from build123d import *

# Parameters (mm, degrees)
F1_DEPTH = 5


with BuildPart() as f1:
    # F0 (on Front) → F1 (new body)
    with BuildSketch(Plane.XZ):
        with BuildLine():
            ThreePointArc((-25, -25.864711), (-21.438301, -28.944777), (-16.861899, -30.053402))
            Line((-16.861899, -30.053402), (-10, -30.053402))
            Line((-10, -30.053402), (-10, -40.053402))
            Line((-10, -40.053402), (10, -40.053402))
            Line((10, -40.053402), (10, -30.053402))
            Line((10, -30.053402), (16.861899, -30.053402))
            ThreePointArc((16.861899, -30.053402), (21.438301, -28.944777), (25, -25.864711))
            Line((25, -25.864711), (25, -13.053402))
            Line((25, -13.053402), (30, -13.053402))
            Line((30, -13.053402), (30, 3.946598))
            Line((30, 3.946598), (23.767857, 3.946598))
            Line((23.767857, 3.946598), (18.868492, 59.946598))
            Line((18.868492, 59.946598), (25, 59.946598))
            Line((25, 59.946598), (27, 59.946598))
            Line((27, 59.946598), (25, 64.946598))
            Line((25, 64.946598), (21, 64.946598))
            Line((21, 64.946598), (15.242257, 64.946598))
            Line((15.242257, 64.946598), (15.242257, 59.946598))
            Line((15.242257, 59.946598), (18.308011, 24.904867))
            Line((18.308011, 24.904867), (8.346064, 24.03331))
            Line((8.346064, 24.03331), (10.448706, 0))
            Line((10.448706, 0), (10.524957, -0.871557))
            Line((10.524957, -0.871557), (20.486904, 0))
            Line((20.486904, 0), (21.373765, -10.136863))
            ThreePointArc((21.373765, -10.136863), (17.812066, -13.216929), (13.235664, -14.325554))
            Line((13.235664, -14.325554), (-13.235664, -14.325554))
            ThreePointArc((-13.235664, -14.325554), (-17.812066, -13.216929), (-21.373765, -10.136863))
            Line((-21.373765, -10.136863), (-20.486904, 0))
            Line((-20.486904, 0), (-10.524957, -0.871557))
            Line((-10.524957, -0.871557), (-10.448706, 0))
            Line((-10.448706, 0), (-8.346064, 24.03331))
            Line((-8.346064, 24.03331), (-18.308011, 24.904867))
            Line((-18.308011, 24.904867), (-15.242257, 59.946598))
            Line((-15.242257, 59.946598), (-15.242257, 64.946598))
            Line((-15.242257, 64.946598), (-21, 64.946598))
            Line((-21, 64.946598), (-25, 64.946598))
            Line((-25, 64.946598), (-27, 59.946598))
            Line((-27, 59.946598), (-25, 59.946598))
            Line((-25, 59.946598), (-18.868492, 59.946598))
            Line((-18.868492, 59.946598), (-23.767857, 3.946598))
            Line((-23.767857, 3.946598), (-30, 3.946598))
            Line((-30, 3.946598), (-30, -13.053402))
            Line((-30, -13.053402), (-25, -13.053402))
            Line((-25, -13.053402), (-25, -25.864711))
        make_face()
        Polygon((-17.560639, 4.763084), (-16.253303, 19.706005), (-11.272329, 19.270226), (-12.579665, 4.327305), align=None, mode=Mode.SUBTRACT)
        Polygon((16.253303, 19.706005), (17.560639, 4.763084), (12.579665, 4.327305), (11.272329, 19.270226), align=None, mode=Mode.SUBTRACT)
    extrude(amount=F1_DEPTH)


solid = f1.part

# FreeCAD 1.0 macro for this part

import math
import FreeCAD as App
import Part
import Sketcher
from FreeCAD import Vector
Q = App.Units.Quantity

doc = App.newDocument("Part")
params = doc.addObject("Spreadsheet::Sheet", "Params")
for row, (alias, value) in enumerate([
    ("sketch1_radius", "9.999998 mm"),
    ("sketch1_width", "20 mm"),
    ("sketch1_width2", "5 mm"),
    ("sketch1_height", "10 mm"),
    ("sketch1_height2", "17 mm"),
    ("pad1_length", "5 mm"),
], start=1):
    params.set(f"A{row}", alias)
    params.set(f"B{row}", "=" + value)
    params.setAlias(f"B{row}", alias)

body = doc.addObject("PartDesign::Body", "Body")

# Sketch on XZ plane
sketch1 = doc.addObject("Sketcher::SketchObject", "Sketch")
body.addObject(sketch1)
sketch1.AttachmentSupport = (doc.XZ_Plane, [""])
sketch1.MapMode = "FlatFace"
sketch1.addGeometry([
    Part.ArcOfCircle(Part.Circle(Vector(-16.8619, -20.053404, 0), Vector(0, 0, 1), 9.999998), math.radians(-144.469882), math.radians(-89.999995)),  # 0
    Part.LineSegment(Vector(-16.861899, -30.053402, 0), Vector(-10, -30.053402, 0)),  # 1
    Part.LineSegment(Vector(-10, -30.053402, 0), Vector(-10, -40.053402, 0)),  # 2
    Part.LineSegment(Vector(-10, -40.053402, 0), Vector(10, -40.053402, 0)),  # 3
    Part.LineSegment(Vector(10, -40.053402, 0), Vector(10, -30.053402, 0)),  # 4
    Part.LineSegment(Vector(10, -30.053402, 0), Vector(16.861899, -30.053402, 0)),  # 5
    Part.ArcOfCircle(Part.Circle(Vector(16.8619, -20.053404, 0), Vector(0, 0, 1), 9.999998), math.radians(-90.000005), math.radians(-35.530118)),  # 6
    Part.LineSegment(Vector(25, -25.864711, 0), Vector(25, -13.053402, 0)),  # 7
    Part.LineSegment(Vector(25, -13.053402, 0), Vector(30, -13.053402, 0)),  # 8
    Part.LineSegment(Vector(30, -13.053402, 0), Vector(30, 3.946598, 0)),  # 9
    Part.LineSegment(Vector(30, 3.946598, 0), Vector(23.767857, 3.946598, 0)),  # 10
    Part.LineSegment(Vector(23.767857, 3.946598, 0), Vector(18.868492, 59.946598, 0)),  # 11
    Part.LineSegment(Vector(18.868492, 59.946598, 0), Vector(27, 59.946598, 0)),  # 12
    Part.LineSegment(Vector(27, 59.946598, 0), Vector(25, 64.946598, 0)),  # 13
    Part.LineSegment(Vector(25, 64.946598, 0), Vector(15.242257, 64.946598, 0)),  # 14
    Part.LineSegment(Vector(15.242257, 64.946598, 0), Vector(15.242257, 59.946598, 0)),  # 15
    Part.LineSegment(Vector(15.242257, 59.946598, 0), Vector(18.308011, 24.904867, 0)),  # 16
    Part.LineSegment(Vector(18.308011, 24.904867, 0), Vector(8.346064, 24.03331, 0)),  # 17
    Part.LineSegment(Vector(8.346064, 24.03331, 0), Vector(10.448706, 0, 0)),  # 18
    Part.LineSegment(Vector(10.448706, 0, 0), Vector(10.524957, -0.871557, 0)),  # 19
    Part.LineSegment(Vector(10.524957, -0.871557, 0), Vector(20.486904, 0, 0)),  # 20
    Part.LineSegment(Vector(20.486904, 0, 0), Vector(21.373765, -10.136863, 0)),  # 21
    Part.ArcOfCircle(Part.Circle(Vector(13.235665, -4.325556, 0), Vector(0, 0, 1), 9.999998), math.radians(-90.000005), math.radians(-35.530118)),  # 22
    Part.LineSegment(Vector(13.235664, -14.325554, 0), Vector(-13.235664, -14.325554, 0)),  # 23
    Part.ArcOfCircle(Part.Circle(Vector(-13.235665, -4.325556, 0), Vector(0, 0, 1), 9.999998), math.radians(-144.469882), math.radians(-89.999995)),  # 24
    Part.LineSegment(Vector(-21.373765, -10.136863, 0), Vector(-20.486904, 0, 0)),  # 25
    Part.LineSegment(Vector(-20.486904, 0, 0), Vector(-10.524957, -0.871557, 0)),  # 26
    Part.LineSegment(Vector(-10.524957, -0.871557, 0), Vector(-10.448706, 0, 0)),  # 27
    Part.LineSegment(Vector(-10.448706, 0, 0), Vector(-8.346064, 24.03331, 0)),  # 28
    Part.LineSegment(Vector(-8.346064, 24.03331, 0), Vector(-18.308011, 24.904867, 0)),  # 29
    Part.LineSegment(Vector(-18.308011, 24.904867, 0), Vector(-15.242257, 59.946598, 0)),  # 30
    Part.LineSegment(Vector(-15.242257, 59.946598, 0), Vector(-15.242257, 64.946598, 0)),  # 31
    Part.LineSegment(Vector(-15.242257, 64.946598, 0), Vector(-25, 64.946598, 0)),  # 32
    Part.LineSegment(Vector(-25, 64.946598, 0), Vector(-27, 59.946598, 0)),  # 33
    Part.LineSegment(Vector(-27, 59.946598, 0), Vector(-18.868492, 59.946598, 0)),  # 34
    Part.LineSegment(Vector(-18.868492, 59.946598, 0), Vector(-23.767857, 3.946598, 0)),  # 35
    Part.LineSegment(Vector(-23.767857, 3.946598, 0), Vector(-30, 3.946598, 0)),  # 36
    Part.LineSegment(Vector(-30, 3.946598, 0), Vector(-30, -13.053402, 0)),  # 37
    Part.LineSegment(Vector(-30, -13.053402, 0), Vector(-25, -13.053402, 0)),  # 38
    Part.LineSegment(Vector(-25, -13.053402, 0), Vector(-25, -25.864711, 0)),  # 39
    Part.LineSegment(Vector(-12.579665, 4.327305, 0), Vector(-17.560639, 4.763084, 0)),  # 40
    Part.LineSegment(Vector(-17.560639, 4.763084, 0), Vector(-16.253303, 19.706005, 0)),  # 41
    Part.LineSegment(Vector(-16.253303, 19.706005, 0), Vector(-11.272329, 19.270226, 0)),  # 42
    Part.LineSegment(Vector(-11.272329, 19.270226, 0), Vector(-12.579665, 4.327305, 0)),  # 43
    Part.LineSegment(Vector(11.272329, 19.270226, 0), Vector(16.253303, 19.706005, 0)),  # 44
    Part.LineSegment(Vector(16.253303, 19.706005, 0), Vector(17.560639, 4.763084, 0)),  # 45
    Part.LineSegment(Vector(17.560639, 4.763084, 0), Vector(12.579665, 4.327305, 0)),  # 46
    Part.LineSegment(Vector(12.579665, 4.327305, 0), Vector(11.272329, 19.270226, 0)),  # 47
], False)
sketch1.addConstraint([
    Sketcher.Constraint("Tangent", 0, 2, 1, 1),
    Sketcher.Constraint("Coincident", 1, 2, 2, 1),
    Sketcher.Constraint("Coincident", 2, 2, 3, 1),
    Sketcher.Constraint("Coincident", 3, 2, 4, 1),
    Sketcher.Constraint("Coincident", 4, 2, 5, 1),
    Sketcher.Constraint("Tangent", 5, 2, 6, 1),
    Sketcher.Constraint("Coincident", 6, 2, 7, 1),
    Sketcher.Constraint("Coincident", 7, 2, 8, 1),
    Sketcher.Constraint("Coincident", 8, 2, 9, 1),
    Sketcher.Constraint("Coincident", 9, 2, 10, 1),
    Sketcher.Constraint("Coincident", 10, 2, 11, 1),
    Sketcher.Constraint("Coincident", 11, 2, 12, 1),
    Sketcher.Constraint("Coincident", 12, 2, 13, 1),
    Sketcher.Constraint("Coincident", 13, 2, 14, 1),
    Sketcher.Constraint("Coincident", 14, 2, 15, 1),
    Sketcher.Constraint("Coincident", 15, 2, 16, 1),
    Sketcher.Constraint("Coincident", 16, 2, 17, 1),
    Sketcher.Constraint("Coincident", 17, 2, 18, 1),
    Sketcher.Constraint("Coincident", 18, 2, 19, 1),
    Sketcher.Constraint("Coincident", 19, 2, 20, 1),
    Sketcher.Constraint("Coincident", 20, 2, 21, 1),
    Sketcher.Constraint("Coincident", 21, 2, 22, 2),
    Sketcher.Constraint("Tangent", 22, 1, 23, 1),
    Sketcher.Constraint("Tangent", 23, 2, 24, 2),
    Sketcher.Constraint("Coincident", 24, 1, 25, 1),
    Sketcher.Constraint("Coincident", 25, 2, 26, 1),
    Sketcher.Constraint("Coincident", 26, 2, 27, 1),
    Sketcher.Constraint("Coincident", 27, 2, 28, 1),
    Sketcher.Constraint("Coincident", 28, 2, 29, 1),
    Sketcher.Constraint("Coincident", 29, 2, 30, 1),
    Sketcher.Constraint("Coincident", 30, 2, 31, 1),
    Sketcher.Constraint("Coincident", 31, 2, 32, 1),
    Sketcher.Constraint("Coincident", 32, 2, 33, 1),
    Sketcher.Constraint("Coincident", 33, 2, 34, 1),
    Sketcher.Constraint("Coincident", 34, 2, 35, 1),
    Sketcher.Constraint("Coincident", 35, 2, 36, 1),
    Sketcher.Constraint("Coincident", 36, 2, 37, 1),
    Sketcher.Constraint("Coincident", 37, 2, 38, 1),
    Sketcher.Constraint("Coincident", 38, 2, 39, 1),
    Sketcher.Constraint("Coincident", 39, 2, 0, 1),
    Sketcher.Constraint("Coincident", 40, 2, 41, 1),
    Sketcher.Constraint("Coincident", 41, 2, 42, 1),
    Sketcher.Constraint("Coincident", 42, 2, 43, 1),
    Sketcher.Constraint("Coincident", 43, 2, 40, 1),
    Sketcher.Constraint("Coincident", 44, 2, 45, 1),
    Sketcher.Constraint("Coincident", 45, 2, 46, 1),
    Sketcher.Constraint("Coincident", 46, 2, 47, 1),
    Sketcher.Constraint("Coincident", 47, 2, 44, 1),
    Sketcher.Constraint("Horizontal", 1),
    Sketcher.Constraint("Vertical", 2),
    Sketcher.Constraint("Horizontal", 3),
    Sketcher.Constraint("Vertical", 4),
    Sketcher.Constraint("Horizontal", 5),
    Sketcher.Constraint("Vertical", 7),
    Sketcher.Constraint("Horizontal", 8),
    Sketcher.Constraint("Vertical", 9),
    Sketcher.Constraint("Horizontal", 10),
    Sketcher.Constraint("Horizontal", 12),
    Sketcher.Constraint("Horizontal", 14),
    Sketcher.Constraint("Vertical", 15),
    Sketcher.Constraint("Horizontal", 23),
    Sketcher.Constraint("Vertical", 31),
    Sketcher.Constraint("Horizontal", 32),
    Sketcher.Constraint("Horizontal", 34),
    Sketcher.Constraint("Horizontal", 36),
    Sketcher.Constraint("Vertical", 37),
    Sketcher.Constraint("Horizontal", 38),
    Sketcher.Constraint("Vertical", 39),
    Sketcher.Constraint("Equal", 0, 6),
    Sketcher.Constraint("Equal", 6, 22),
    Sketcher.Constraint("Equal", 22, 24),
    Sketcher.Constraint("Symmetric", 20, 2, 25, 2, -1, 1),
    Sketcher.Constraint("Symmetric", 18, 2, 27, 2, -1, 1),
    Sketcher.Constraint("Symmetric", 0, 3, 6, 3, -2),
    Sketcher.Constraint("Symmetric", 21, 2, 24, 1, -2),
    Sketcher.Constraint("Symmetric", 19, 2, 26, 2, -2),
    Sketcher.Constraint("Symmetric", 17, 2, 28, 2, -2),
    Sketcher.Constraint("Symmetric", 16, 2, 29, 2, -2),
    Sketcher.Constraint("Symmetric", 15, 2, 30, 2, -2),
    Sketcher.Constraint("Symmetric", 13, 2, 32, 2, -2),
    Sketcher.Constraint("Symmetric", 12, 2, 33, 2, -2),
    Sketcher.Constraint("Symmetric", 10, 2, 35, 2, -2),
    Sketcher.Constraint("Symmetric", 8, 2, 37, 2, -2),
    Sketcher.Constraint("Symmetric", 41, 2, 44, 2, -2),
    Sketcher.Constraint("Symmetric", 40, 2, 45, 2, -2),
    Sketcher.Constraint("Symmetric", 43, 2, 46, 2, -2),
    Sketcher.Constraint("Symmetric", 42, 2, 47, 2, -2),
    Sketcher.Constraint("PointOnObject", 18, 2, -1),
    Sketcher.Constraint("PointOnObject", 20, 2, -1),
    Sketcher.Constraint("Parallel", 11, 16),
    Sketcher.Constraint("Perpendicular", 16, 17),
    Sketcher.Constraint("Perpendicular", 17, 18),
    Sketcher.Constraint("Parallel", 18, 19),
    Sketcher.Constraint("Perpendicular", 19, 20),
    Sketcher.Constraint("Perpendicular", 20, 21),
    Sketcher.Constraint("Parallel", 30, 35),
    Sketcher.Constraint("Perpendicular", 35, 40),
    Sketcher.Constraint("Perpendicular", 40, 41),
    Sketcher.Constraint("Perpendicular", 41, 42),
    Sketcher.Constraint("Perpendicular", 42, 43),
    Sketcher.Constraint("Horizontal", 12, 2, 15, 2),
    Sketcher.Constraint("Horizontal", 6, 2, 39, 2),
    Sketcher.Constraint("Vertical", 7, 2, 13, 2),
    Sketcher.Constraint("Equal", 1, 5),
    Sketcher.Constraint("Equal", 38, 15),
    Sketcher.Constraint("Equal", 17, 20),
    Sketcher.Constraint("Radius", 0, 9.999998),
    Sketcher.Constraint("DistanceX", 3, 1, 3, 2, 20.0),
    Sketcher.Constraint("DistanceX", 8, 1, 8, 2, 5.0),
    Sketcher.Constraint("DistanceY", 2, 2, 2, 1, 10.0),
    Sketcher.Constraint("DistanceY", 9, 1, 9, 2, 17.0),
    Sketcher.Constraint("Angle", 11, Q("95 deg")),
    Sketcher.Constraint("Distance", 17, 10.0),
    Sketcher.Constraint("Distance", 40, 5.000001),
    Sketcher.Constraint("Distance", 41, 15.000001),
    Sketcher.Constraint("DistanceX", -1, 1, 6, 2, 25.0),
    Sketcher.Constraint("DistanceX", -1, 1, 12, 2, 27.0),
    Sketcher.Constraint("DistanceY", 6, 3, 7, 2, 7.000002),
    Sketcher.Constraint("DistanceY", 10, 2, 11, 2, 56.0),
    Sketcher.Constraint("DistanceX", 1, 1, 1, 2, 6.861899),
    Sketcher.Constraint("DistanceY", 22, 3, 19, 2, 3.453999),
    Sketcher.Constraint("DistanceX", 24, 3, 43, 2, 0.656),
    Sketcher.Constraint("DistanceX", 23, 2, 23, 1, 26.471328),
    Sketcher.Constraint("DistanceY", 0, 2, -1, 1, 30.053402),
    Sketcher.Constraint("DistanceX", 14, 2, 10, 2, 8.5256),
    Sketcher.Constraint("DistanceX", 17, 2, 22, 3, 4.889601),
    Sketcher.Constraint("DistanceX", 22, 3, 21, 2, 8.1381),
    Sketcher.Constraint("DistanceY", 26, 2, 40, 2, 5.634641),
])
sketch1.setExpression("Constraints[106]", "Params.sketch1_radius")
sketch1.setExpression("Constraints[107]", "Params.sketch1_width")
sketch1.setExpression("Constraints[108]", "Params.sketch1_width2")
sketch1.setExpression("Constraints[109]", "Params.sketch1_height")
sketch1.setExpression("Constraints[110]", "Params.sketch1_height2")
pad1 = doc.addObject("PartDesign::Pad", "Pad")
body.addObject(pad1)
pad1.Profile = sketch1
pad1.setExpression("Length", "Params.pad1_length")

doc.recompute()
